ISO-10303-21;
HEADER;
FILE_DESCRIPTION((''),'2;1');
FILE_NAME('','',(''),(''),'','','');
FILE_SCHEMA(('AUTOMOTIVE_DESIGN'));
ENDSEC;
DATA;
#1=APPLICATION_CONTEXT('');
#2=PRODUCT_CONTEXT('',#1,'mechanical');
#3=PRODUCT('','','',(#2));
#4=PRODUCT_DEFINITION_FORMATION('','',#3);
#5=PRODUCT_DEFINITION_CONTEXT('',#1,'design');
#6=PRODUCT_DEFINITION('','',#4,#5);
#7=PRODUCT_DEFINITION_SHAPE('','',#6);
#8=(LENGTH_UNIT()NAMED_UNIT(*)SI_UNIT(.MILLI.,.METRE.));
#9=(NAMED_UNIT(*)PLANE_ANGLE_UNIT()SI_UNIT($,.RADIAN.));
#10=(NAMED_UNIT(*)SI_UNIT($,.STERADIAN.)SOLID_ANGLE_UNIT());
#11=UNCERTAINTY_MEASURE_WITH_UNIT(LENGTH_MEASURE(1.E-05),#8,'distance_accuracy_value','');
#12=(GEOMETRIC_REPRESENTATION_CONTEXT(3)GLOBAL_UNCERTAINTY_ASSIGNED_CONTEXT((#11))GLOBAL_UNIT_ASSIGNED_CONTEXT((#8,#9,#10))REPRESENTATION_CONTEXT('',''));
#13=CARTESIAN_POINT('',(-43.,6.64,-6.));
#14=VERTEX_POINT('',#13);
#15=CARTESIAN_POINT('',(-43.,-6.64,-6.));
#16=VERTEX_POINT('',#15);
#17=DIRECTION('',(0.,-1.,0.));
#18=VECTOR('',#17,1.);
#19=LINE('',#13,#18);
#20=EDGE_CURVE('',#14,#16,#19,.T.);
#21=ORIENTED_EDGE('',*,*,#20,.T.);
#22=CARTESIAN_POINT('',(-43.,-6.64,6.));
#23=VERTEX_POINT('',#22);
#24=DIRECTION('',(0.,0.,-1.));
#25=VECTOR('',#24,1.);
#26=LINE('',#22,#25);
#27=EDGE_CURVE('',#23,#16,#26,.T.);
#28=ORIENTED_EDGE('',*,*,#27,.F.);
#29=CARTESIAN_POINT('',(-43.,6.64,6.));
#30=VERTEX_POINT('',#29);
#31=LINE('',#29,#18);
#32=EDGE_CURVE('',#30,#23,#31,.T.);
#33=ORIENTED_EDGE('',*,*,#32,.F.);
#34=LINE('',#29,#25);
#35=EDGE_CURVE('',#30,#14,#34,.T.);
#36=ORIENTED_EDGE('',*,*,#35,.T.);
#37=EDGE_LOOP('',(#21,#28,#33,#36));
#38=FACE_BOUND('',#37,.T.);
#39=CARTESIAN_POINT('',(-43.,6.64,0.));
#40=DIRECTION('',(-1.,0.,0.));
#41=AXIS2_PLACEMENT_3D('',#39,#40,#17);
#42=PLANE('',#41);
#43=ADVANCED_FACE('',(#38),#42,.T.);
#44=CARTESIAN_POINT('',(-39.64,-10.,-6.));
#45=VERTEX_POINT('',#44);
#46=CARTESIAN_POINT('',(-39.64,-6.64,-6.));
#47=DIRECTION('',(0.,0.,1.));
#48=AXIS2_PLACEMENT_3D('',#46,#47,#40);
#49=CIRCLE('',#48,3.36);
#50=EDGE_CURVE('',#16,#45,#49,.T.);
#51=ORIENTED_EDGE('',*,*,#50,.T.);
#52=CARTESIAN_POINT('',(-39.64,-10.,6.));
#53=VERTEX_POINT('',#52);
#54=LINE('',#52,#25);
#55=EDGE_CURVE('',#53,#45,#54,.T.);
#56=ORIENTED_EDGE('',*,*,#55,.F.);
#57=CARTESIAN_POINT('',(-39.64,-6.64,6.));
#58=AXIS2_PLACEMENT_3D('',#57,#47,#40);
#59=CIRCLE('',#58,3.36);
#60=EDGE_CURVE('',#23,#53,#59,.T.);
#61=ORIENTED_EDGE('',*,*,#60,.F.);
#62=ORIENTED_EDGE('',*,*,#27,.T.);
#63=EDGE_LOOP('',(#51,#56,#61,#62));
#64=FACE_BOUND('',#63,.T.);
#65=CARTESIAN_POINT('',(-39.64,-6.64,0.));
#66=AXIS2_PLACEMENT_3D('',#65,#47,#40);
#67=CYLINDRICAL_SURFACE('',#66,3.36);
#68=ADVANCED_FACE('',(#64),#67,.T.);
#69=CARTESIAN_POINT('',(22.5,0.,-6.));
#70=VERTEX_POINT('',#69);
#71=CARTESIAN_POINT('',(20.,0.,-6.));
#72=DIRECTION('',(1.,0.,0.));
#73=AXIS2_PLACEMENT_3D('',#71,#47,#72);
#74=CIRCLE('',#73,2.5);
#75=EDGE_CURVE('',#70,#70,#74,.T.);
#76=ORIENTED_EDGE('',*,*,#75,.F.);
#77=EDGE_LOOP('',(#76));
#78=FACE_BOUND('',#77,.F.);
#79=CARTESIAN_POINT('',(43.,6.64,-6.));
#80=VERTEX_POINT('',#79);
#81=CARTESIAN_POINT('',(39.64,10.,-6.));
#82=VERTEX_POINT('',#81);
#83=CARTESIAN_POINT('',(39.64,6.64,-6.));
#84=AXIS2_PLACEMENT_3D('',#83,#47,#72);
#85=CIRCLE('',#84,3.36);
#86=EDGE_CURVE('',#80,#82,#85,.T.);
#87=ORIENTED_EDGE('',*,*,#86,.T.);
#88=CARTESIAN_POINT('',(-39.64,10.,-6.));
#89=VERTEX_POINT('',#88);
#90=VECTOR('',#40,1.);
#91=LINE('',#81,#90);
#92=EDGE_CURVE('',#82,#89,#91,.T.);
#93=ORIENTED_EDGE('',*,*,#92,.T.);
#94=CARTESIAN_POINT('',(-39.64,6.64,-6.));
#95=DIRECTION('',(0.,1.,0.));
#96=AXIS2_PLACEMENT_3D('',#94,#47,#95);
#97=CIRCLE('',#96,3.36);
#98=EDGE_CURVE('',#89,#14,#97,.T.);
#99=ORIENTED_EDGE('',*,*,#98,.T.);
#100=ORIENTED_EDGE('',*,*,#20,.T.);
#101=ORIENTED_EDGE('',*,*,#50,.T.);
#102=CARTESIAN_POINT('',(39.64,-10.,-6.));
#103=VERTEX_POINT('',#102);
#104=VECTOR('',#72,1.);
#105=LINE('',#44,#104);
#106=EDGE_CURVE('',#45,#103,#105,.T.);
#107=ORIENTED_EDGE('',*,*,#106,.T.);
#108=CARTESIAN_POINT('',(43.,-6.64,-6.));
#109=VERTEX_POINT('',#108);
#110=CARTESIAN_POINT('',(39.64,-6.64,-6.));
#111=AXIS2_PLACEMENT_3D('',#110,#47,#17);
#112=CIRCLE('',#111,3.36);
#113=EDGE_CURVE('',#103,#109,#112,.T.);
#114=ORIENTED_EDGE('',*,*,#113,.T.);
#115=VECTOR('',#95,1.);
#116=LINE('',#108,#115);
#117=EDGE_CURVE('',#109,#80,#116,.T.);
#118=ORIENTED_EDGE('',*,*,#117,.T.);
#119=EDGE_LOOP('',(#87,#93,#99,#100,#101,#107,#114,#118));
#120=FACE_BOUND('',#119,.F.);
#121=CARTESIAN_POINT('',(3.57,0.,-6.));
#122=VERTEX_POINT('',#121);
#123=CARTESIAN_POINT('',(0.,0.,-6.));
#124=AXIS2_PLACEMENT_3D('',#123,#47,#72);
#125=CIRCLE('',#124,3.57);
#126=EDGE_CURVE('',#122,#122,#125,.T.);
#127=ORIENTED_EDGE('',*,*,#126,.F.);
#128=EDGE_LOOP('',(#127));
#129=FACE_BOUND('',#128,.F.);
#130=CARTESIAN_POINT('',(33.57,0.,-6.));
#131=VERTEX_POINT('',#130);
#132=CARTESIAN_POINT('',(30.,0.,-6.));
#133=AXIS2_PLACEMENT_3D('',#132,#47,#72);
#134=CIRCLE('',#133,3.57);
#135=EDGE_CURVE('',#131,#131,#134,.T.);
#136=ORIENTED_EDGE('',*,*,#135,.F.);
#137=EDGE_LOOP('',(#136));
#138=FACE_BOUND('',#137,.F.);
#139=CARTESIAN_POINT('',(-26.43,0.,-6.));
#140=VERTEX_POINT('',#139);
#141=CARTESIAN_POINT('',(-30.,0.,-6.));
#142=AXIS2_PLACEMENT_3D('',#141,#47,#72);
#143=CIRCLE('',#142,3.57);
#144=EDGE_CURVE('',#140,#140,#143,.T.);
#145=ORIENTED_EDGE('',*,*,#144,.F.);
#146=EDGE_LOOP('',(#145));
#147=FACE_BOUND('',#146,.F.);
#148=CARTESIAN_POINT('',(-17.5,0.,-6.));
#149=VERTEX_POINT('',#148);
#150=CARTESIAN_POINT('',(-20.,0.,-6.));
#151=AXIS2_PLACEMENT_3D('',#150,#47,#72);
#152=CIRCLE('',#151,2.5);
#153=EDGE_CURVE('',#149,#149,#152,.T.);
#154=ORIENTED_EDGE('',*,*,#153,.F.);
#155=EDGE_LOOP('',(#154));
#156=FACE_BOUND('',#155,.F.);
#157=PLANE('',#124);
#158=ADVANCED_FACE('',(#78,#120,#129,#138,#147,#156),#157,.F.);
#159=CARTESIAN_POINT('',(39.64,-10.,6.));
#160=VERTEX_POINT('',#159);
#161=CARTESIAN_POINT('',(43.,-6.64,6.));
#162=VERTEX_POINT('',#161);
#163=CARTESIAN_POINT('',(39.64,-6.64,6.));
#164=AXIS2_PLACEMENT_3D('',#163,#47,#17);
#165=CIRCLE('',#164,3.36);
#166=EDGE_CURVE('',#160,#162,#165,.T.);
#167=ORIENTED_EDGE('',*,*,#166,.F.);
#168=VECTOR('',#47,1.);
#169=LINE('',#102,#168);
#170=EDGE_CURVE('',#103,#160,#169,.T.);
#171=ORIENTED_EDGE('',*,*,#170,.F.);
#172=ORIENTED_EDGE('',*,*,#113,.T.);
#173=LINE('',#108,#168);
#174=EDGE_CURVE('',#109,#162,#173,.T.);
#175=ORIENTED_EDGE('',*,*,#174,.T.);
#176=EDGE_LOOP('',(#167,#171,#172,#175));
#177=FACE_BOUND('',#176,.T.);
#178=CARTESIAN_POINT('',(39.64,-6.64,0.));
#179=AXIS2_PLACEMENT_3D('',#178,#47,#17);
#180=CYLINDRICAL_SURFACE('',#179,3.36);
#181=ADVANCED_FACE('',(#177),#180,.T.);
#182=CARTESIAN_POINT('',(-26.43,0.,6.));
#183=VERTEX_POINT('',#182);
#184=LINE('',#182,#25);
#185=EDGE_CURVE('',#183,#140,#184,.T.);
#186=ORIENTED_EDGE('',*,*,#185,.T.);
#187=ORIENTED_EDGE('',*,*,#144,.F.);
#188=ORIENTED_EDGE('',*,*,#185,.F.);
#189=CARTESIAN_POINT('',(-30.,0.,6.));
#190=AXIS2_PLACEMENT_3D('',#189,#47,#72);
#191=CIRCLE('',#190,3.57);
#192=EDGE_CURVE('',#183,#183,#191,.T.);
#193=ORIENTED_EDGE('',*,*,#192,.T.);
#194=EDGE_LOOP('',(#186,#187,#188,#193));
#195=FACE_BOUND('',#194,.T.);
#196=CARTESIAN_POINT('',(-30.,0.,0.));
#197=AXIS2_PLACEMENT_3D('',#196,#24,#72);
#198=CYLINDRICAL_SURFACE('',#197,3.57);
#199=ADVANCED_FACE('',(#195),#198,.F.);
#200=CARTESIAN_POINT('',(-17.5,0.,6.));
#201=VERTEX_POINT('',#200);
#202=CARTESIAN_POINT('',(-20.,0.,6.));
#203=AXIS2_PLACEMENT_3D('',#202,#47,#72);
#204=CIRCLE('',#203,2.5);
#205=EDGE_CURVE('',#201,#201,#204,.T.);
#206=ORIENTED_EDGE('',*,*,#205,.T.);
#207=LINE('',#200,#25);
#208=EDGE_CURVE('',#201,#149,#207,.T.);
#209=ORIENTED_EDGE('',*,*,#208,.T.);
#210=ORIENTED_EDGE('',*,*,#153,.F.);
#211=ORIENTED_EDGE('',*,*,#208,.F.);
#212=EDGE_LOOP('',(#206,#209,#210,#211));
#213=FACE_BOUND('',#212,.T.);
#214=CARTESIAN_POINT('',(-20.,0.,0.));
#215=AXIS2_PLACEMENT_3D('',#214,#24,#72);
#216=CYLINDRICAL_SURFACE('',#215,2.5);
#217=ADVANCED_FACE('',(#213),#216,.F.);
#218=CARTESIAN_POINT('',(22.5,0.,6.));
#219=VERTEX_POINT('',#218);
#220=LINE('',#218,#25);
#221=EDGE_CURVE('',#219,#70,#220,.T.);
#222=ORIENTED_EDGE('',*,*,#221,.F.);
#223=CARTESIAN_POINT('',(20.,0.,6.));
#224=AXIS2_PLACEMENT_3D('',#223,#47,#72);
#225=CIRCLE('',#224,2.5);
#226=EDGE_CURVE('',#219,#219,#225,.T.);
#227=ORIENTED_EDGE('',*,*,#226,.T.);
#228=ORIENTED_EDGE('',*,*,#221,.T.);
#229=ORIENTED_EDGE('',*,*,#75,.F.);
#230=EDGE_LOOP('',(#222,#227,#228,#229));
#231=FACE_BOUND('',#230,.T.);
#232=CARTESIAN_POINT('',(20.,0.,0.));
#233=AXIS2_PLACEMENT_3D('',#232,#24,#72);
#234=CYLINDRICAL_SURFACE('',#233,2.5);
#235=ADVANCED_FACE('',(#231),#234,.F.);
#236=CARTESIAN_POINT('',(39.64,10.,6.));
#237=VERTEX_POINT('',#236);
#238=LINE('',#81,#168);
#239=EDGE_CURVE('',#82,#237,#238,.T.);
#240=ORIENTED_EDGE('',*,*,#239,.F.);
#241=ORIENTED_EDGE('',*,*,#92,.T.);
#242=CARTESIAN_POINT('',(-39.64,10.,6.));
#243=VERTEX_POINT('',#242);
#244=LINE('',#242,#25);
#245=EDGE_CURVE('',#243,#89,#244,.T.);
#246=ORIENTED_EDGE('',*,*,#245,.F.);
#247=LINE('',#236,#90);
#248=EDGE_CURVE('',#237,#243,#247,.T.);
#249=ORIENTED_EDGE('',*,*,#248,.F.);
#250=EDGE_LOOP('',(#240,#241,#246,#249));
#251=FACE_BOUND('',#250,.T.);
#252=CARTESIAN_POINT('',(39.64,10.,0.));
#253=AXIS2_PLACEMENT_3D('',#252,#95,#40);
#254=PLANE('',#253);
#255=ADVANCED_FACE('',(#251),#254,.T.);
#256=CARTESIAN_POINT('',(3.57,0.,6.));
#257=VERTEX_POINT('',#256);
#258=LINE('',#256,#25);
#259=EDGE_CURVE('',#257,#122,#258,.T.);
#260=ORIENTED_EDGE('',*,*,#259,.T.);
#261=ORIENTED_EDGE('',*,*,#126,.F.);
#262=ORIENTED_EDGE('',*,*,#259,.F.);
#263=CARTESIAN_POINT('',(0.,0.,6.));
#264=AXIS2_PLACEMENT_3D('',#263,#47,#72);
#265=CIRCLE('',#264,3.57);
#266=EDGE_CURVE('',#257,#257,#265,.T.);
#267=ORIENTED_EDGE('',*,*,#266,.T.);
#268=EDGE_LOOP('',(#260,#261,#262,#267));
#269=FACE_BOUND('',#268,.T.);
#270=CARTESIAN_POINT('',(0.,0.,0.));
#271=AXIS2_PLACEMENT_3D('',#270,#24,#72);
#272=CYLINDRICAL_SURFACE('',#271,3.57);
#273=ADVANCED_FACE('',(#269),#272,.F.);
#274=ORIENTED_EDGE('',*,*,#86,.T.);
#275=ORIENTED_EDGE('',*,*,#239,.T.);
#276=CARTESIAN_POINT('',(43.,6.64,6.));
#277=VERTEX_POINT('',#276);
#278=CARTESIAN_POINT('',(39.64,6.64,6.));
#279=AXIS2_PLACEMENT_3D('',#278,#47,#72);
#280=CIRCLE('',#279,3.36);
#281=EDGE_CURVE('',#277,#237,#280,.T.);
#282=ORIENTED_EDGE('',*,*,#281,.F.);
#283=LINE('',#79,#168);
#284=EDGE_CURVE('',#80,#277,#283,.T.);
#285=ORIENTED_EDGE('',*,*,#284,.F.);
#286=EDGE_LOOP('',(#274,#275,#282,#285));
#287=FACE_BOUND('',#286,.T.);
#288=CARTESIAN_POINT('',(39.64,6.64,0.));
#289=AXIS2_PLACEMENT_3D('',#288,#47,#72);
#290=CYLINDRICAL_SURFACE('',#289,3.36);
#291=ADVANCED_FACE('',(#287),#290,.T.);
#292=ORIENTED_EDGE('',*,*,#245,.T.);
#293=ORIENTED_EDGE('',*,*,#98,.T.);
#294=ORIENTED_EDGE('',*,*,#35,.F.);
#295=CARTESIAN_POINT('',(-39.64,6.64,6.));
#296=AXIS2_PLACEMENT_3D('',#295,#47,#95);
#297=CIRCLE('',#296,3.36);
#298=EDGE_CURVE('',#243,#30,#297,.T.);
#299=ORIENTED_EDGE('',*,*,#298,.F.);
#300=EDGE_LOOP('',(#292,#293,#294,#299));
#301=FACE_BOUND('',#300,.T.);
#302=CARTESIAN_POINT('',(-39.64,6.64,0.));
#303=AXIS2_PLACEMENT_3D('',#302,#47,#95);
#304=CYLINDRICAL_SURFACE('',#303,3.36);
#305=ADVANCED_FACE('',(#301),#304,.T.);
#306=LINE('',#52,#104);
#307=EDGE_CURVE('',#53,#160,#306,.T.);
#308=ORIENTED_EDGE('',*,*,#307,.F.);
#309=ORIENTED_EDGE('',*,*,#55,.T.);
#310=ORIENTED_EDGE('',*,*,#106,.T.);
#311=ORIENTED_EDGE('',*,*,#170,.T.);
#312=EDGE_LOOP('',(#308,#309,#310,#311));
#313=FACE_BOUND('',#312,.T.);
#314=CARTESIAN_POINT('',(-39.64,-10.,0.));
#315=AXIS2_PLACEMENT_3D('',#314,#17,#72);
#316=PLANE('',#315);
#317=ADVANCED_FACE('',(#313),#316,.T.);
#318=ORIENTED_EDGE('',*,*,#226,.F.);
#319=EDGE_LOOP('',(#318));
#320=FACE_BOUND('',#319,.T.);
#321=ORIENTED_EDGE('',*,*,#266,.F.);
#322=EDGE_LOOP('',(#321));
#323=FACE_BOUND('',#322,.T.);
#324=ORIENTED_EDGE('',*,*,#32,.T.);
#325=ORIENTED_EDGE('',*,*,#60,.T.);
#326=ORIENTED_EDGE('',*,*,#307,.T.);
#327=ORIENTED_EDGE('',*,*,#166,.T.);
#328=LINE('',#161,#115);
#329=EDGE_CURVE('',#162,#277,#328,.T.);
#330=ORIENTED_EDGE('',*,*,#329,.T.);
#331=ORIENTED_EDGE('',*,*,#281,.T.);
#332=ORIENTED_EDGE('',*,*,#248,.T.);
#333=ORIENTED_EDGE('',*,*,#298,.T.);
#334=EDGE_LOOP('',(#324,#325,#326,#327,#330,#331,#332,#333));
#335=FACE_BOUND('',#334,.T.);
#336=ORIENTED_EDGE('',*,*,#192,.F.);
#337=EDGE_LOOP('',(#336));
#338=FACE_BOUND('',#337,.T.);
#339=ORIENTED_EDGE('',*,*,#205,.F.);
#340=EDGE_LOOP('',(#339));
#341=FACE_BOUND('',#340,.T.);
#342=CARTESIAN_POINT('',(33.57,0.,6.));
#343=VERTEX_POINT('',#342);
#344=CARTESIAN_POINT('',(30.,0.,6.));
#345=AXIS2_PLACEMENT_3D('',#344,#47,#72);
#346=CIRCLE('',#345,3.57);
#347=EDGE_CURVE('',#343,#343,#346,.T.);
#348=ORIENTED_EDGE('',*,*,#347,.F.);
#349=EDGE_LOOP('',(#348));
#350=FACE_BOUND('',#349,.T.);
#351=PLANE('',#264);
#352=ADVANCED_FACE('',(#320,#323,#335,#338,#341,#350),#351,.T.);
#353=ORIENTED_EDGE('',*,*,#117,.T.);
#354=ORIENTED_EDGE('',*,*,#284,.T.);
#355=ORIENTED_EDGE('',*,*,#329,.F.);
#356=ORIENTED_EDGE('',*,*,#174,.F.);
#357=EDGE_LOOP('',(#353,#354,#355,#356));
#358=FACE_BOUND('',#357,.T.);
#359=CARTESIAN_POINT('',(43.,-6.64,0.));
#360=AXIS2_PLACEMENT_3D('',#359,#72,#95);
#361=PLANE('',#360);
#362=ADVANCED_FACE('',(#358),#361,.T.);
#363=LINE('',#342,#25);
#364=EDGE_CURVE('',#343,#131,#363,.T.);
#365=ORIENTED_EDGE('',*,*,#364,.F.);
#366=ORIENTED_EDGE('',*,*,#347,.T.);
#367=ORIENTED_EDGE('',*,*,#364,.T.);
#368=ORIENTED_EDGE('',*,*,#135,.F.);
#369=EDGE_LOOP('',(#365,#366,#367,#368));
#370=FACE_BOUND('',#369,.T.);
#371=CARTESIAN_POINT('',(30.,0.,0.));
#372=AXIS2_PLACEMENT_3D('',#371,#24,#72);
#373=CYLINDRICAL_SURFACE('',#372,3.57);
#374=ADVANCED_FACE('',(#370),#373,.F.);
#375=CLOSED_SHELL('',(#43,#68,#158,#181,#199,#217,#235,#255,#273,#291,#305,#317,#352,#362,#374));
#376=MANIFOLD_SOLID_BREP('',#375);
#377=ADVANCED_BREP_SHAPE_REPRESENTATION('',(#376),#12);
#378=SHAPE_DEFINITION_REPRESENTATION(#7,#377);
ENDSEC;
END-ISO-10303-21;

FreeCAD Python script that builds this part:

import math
import FreeCAD as App
import Part
import Sketcher
from FreeCAD import Vector
Q = App.Units.Quantity

doc = App.newDocument("Part")
body = doc.addObject("PartDesign::Body", "Body")

sketch1 = doc.addObject("Sketcher::SketchObject", "Sketch")
body.addObject(sketch1)
sketch1.AttachmentSupport = (doc.XY_Plane, [""])
sketch1.MapMode = "FlatFace"
sketch1.addGeometry(Part.LineSegment(Vector(-39.64, -10, 0), Vector(39.64, -10, 0)), False)
sketch1.addGeometry(Part.ArcOfCircle(Part.Circle(Vector(39.64, -6.64, 0), Vector(0, 0, 1), 3.36), math.radians(-90), math.radians(0)), False)
sketch1.addGeometry(Part.LineSegment(Vector(43, -6.64, 0), Vector(43, 6.64, 0)), False)
sketch1.addGeometry(Part.ArcOfCircle(Part.Circle(Vector(39.64, 6.64, 0), Vector(0, 0, 1), 3.36), math.radians(0), math.radians(90)), False)
sketch1.addGeometry(Part.LineSegment(Vector(39.64, 10, 0), Vector(-39.64, 10, 0)), False)
sketch1.addGeometry(Part.ArcOfCircle(Part.Circle(Vector(-39.64, 6.64, 0), Vector(0, 0, 1), 3.36), math.radians(90), math.radians(180)), False)
sketch1.addGeometry(Part.LineSegment(Vector(-43, 6.64, 0), Vector(-43, -6.64, 0)), False)
sketch1.addGeometry(Part.ArcOfCircle(Part.Circle(Vector(-39.64, -6.64, 0), Vector(0, 0, 1), 3.36), math.radians(180), math.radians(270)), False)
sketch1.addGeometry(Part.Circle(Vector(-30, 0, 0), Vector(0, 0, 1), 3.57), False)
sketch1.addGeometry(Part.Circle(Vector(-20, 0, 0), Vector(0, 0, 1), 2.5), False)
sketch1.addGeometry(Part.Circle(Vector(0, 0, 0), Vector(0, 0, 1), 3.57), False)
sketch1.addGeometry(Part.Circle(Vector(20, 0, 0), Vector(0, 0, 1), 2.5), False)
sketch1.addGeometry(Part.Circle(Vector(30, 0, 0), Vector(0, 0, 1), 3.57), False)
sketch1.addConstraint(Sketcher.Constraint("Tangent", 0, 2, 1, 1))
sketch1.addConstraint(Sketcher.Constraint("Tangent", 1, 2, 2, 1))
sketch1.addConstraint(Sketcher.Constraint("Tangent", 2, 2, 3, 1))
sketch1.addConstraint(Sketcher.Constraint("Tangent", 3, 2, 4, 1))
sketch1.addConstraint(Sketcher.Constraint("Tangent", 4, 2, 5, 1))
sketch1.addConstraint(Sketcher.Constraint("Tangent", 5, 2, 6, 1))
sketch1.addConstraint(Sketcher.Constraint("Tangent", 6, 2, 7, 1))
sketch1.addConstraint(Sketcher.Constraint("Tangent", 7, 2, 0, 1))
sketch1.addConstraint(Sketcher.Constraint("Horizontal", 0))
sketch1.addConstraint(Sketcher.Constraint("Vertical", 2))
sketch1.addConstraint(Sketcher.Constraint("Horizontal", 4))
sketch1.addConstraint(Sketcher.Constraint("Vertical", 6))
sketch1.addConstraint(Sketcher.Constraint("Coincident", 10, 3, -1, 1))
sketch1.addConstraint(Sketcher.Constraint("Equal", 1, 3))
sketch1.addConstraint(Sketcher.Constraint("Equal", 3, 5))
sketch1.addConstraint(Sketcher.Constraint("Equal", 5, 7))
sketch1.addConstraint(Sketcher.Constraint("Equal", 8, 10))
sketch1.addConstraint(Sketcher.Constraint("Equal", 9, 11))
sketch1.addConstraint(Sketcher.Constraint("Equal", 10, 12))
sketch1.addConstraint(Sketcher.Constraint("Symmetric", 1, 3, 5, 3, -1, 1))
sketch1.addConstraint(Sketcher.Constraint("Symmetric", 9, 3, 11, 3, -1, 1))
sketch1.addConstraint(Sketcher.Constraint("Symmetric", 8, 3, 12, 3, -1, 1))
sketch1.addConstraint(Sketcher.Constraint("PointOnObject", 8, 3, -1))
sketch1.addConstraint(Sketcher.Constraint("PointOnObject", 9, 3, -1))
sketch1.addConstraint(Sketcher.Constraint("Diameter", 9, Q("5 mm")))
sketch1.addConstraint(Sketcher.Constraint("Diameter", 8, Q("7.14 mm")))
sketch1.addConstraint(Sketcher.Constraint("Radius", 1, Q("3.36 mm")))
sketch1.addConstraint(Sketcher.Constraint("DistanceX", 8, 3, -1, 1, Q("30 mm")))
sketch1.addConstraint(Sketcher.Constraint("DistanceX", 9, 3, -1, 1, Q("20 mm")))
sketch1.addConstraint(Sketcher.Constraint("DistanceY", 0, 2, -1, 1, Q("10 mm")))
sketch1.addConstraint(Sketcher.Constraint("DistanceX", -1, 1, 1, 2, Q("43 mm")))
pad1 = doc.addObject("PartDesign::Pad", "Pad")
body.addObject(pad1)
pad1.Profile = sketch1
pad1.Length = 12
pad1.Midplane = True

doc.recompute()
